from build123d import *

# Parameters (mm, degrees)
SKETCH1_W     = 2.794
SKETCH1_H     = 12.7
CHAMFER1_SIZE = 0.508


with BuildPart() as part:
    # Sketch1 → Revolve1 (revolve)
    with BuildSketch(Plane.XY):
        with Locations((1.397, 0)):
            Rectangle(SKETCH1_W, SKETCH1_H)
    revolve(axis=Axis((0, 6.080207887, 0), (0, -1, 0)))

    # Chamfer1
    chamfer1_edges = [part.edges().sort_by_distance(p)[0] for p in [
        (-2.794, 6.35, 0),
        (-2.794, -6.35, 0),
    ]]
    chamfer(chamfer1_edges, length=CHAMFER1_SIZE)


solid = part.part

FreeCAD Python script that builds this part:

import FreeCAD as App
import Part
import Sketcher
Q = App.Units.Quantity


def edges_at(feature, points):
    """Names of the edges that pass closest to the given points."""
    edges = feature.Shape.Edges
    near = lambda p: min(range(len(edges)), key=lambda i: edges[i].distToShape(Part.Vertex(*p))[0])
    return sorted({f"Edge{near(p) + 1}" for p in points})

doc = App.newDocument("Part")
body = doc.addObject("PartDesign::Body", "Body")

# Sketch on XY plane
sketch1 = body.newObject("Sketcher::SketchObject", "Sketch")
sketch1.AttachmentSupport = (doc.getObject("XY_Plane"), [""])
sketch1.MapMode = "FlatFace"
sketch1.addGeometry(Part.LineSegment(App.Vector(0, 6.3, 0), App.Vector(0, -6.3, 0)), False)
sketch1.addGeometry(Part.LineSegment(App.Vector(0, -6.3, 0), App.Vector(2.8, -6.3, 0)), False)
sketch1.addGeometry(Part.LineSegment(App.Vector(2.8, -6.3, 0), App.Vector(2.8, 6.3, 0)), False)
sketch1.addGeometry(Part.LineSegment(App.Vector(2.8, 6.3, 0), App.Vector(0, 6.3, 0)), False)
sketch1.addConstraint(Sketcher.Constraint("Coincident", 0, 2, 1, 1))
sketch1.addConstraint(Sketcher.Constraint("Coincident", 1, 2, 2, 1))
sketch1.addConstraint(Sketcher.Constraint("Coincident", 2, 2, 3, 1))
sketch1.addConstraint(Sketcher.Constraint("Coincident", 3, 2, 0, 1))
sketch1.addConstraint(Sketcher.Constraint("Vertical", 0))
sketch1.addConstraint(Sketcher.Constraint("Horizontal", 1))
sketch1.addConstraint(Sketcher.Constraint("Vertical", 2))
sketch1.addConstraint(Sketcher.Constraint("Horizontal", 3))
sketch1.addConstraint(Sketcher.Constraint("Symmetric", 0, 2, 3, 2, -1, 1))
sketch1.addConstraint(Sketcher.Constraint("DistanceY", 0, 2, 0, 1, Q("0.5 in")))
sketch1.addConstraint(Sketcher.Constraint("DistanceX", 1, 1, 1, 2, Q("0.11 in")))
revolution = body.newObject("PartDesign::Revolution", "Revolution")
revolution.Profile = sketch1
revolution.ReferenceAxis = (sketch1, ["V_Axis"])
revolution.Angle = 360
doc.recompute()

chamfer = body.newObject("PartDesign::Chamfer", "Chamfer")
chamfer.Base = (revolution, edges_at(revolution, [(-2.794, 6.35, 0), (-2.794, -6.35, 0)]))
chamfer.Size = Q("0.02 in")

doc.recompute()
